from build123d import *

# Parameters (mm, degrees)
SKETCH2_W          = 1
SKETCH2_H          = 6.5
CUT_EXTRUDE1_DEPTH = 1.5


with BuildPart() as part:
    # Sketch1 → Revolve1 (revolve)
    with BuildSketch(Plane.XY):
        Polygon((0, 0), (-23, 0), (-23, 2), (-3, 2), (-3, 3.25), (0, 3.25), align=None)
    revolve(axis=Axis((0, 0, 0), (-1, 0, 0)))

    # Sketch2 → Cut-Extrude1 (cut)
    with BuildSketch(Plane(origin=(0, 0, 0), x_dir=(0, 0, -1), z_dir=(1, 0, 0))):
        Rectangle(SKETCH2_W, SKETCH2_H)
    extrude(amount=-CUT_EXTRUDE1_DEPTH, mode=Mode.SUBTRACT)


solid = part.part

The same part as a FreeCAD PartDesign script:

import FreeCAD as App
import Part
import Sketcher
from FreeCAD import Vector

doc = App.newDocument("Part")
body = doc.addObject("PartDesign::Body", "Body")

sketch1 = doc.addObject("Sketcher::SketchObject", "Sketch")
body.addObject(sketch1)
sketch1.AttachmentSupport = (doc.XY_Plane, [""])
sketch1.MapMode = "FlatFace"
sketch1.addGeometry([
    Part.LineSegment(Vector(-23, 0, 0), Vector(0, 0, 0)),
    Part.LineSegment(Vector(0, 0, 0), Vector(0, 3.2, 0)),
    Part.LineSegment(Vector(0, 3.2, 0), Vector(-3, 3.2, 0)),
    Part.LineSegment(Vector(-3, 3.2, 0), Vector(-3, 2, 0)),
    Part.LineSegment(Vector(-3, 2, 0), Vector(-23, 2, 0)),
    Part.LineSegment(Vector(-23, 2, 0), Vector(-23, 0, 0)),
], False)
sketch1.addConstraint([
    Sketcher.Constraint("Coincident", 0, 2, 1, 1),
    Sketcher.Constraint("Coincident", 1, 2, 2, 1),
    Sketcher.Constraint("Coincident", 2, 2, 3, 1),
    Sketcher.Constraint("Coincident", 3, 2, 4, 1),
    Sketcher.Constraint("Coincident", 4, 2, 5, 1),
    Sketcher.Constraint("Coincident", 5, 2, 0, 1),
    Sketcher.Constraint("Horizontal", 0),
    Sketcher.Constraint("Vertical", 1),
    Sketcher.Constraint("Horizontal", 2),
    Sketcher.Constraint("Vertical", 3),
    Sketcher.Constraint("Horizontal", 4),
    Sketcher.Constraint("Vertical", 5),
    Sketcher.Constraint("Coincident", 0, 2, -1, 1),
    Sketcher.Constraint("DistanceX", 0, 1, 0, 2, 23.0),
    Sketcher.Constraint("DistanceX", 2, 2, 2, 1, 3.0),
    Sketcher.Constraint("DistanceY", 5, 2, 5, 1, 2.0),
    Sketcher.Constraint("DistanceY", 1, 1, 1, 2, 3.25),
])
revolution = doc.addObject("PartDesign::Revolution", "Revolution")
body.addObject(revolution)
revolution.Profile = sketch1
revolution.ReferenceAxis = (sketch1, ["H_Axis"])
revolution.Angle = 360

sketch2 = doc.addObject("Sketcher::SketchObject", "Sketch001")
body.addObject(sketch2)
sketch2.AttachmentSupport = (doc.YZ_Plane, [""])
sketch2.MapMode = "FlatFace"
sketch2.addGeometry([
    Part.LineSegment(Vector(3.2, 0.5, 0), Vector(-3.2, 0.5, 0)),
    Part.LineSegment(Vector(-3.2, 0.5, 0), Vector(-3.2, -0.5, 0)),
    Part.LineSegment(Vector(-3.2, -0.5, 0), Vector(3.2, -0.5, 0)),
    Part.LineSegment(Vector(3.2, -0.5, 0), Vector(3.2, 0.5, 0)),
], False)
sketch2.addConstraint([
    Sketcher.Constraint("Coincident", 0, 2, 1, 1),
    Sketcher.Constraint("Coincident", 1, 2, 2, 1),
    Sketcher.Constraint("Coincident", 2, 2, 3, 1),
    Sketcher.Constraint("Coincident", 3, 2, 0, 1),
    Sketcher.Constraint("Horizontal", 0),
    Sketcher.Constraint("Vertical", 1),
    Sketcher.Constraint("Horizontal", 2),
    Sketcher.Constraint("Vertical", 3),
    Sketcher.Constraint("Symmetric", 0, 2, 2, 2, -1, 1),
    Sketcher.Constraint("DistanceY", 1, 2, 1, 1, 1.0),
    Sketcher.Constraint("DistanceX", 0, 2, 0, 1, 6.5),
])
pocket1 = doc.addObject("PartDesign::Pocket", "Pocket")
body.addObject(pocket1)
pocket1.Profile = sketch2
pocket1.Length = 1.5

doc.recompute()
